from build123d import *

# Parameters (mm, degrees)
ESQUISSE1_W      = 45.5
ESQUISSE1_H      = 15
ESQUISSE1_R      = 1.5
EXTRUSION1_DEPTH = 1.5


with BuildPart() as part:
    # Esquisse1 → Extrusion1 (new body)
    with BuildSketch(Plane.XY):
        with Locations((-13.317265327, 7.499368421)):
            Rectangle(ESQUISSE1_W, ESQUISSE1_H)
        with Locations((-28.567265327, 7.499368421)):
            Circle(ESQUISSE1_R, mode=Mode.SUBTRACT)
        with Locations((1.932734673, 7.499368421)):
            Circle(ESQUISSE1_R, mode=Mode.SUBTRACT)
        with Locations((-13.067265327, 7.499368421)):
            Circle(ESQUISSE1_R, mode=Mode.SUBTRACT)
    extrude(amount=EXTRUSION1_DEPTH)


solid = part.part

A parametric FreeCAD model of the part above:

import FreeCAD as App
import Part
import Sketcher

doc = App.newDocument("Part")
body = doc.addObject("PartDesign::Body", "Body")

# Sketch on XY plane
sketch1 = body.newObject("Sketcher::SketchObject", "Sketch")
sketch1.AttachmentSupport = (doc.getObject("XY_Plane"), [""])
sketch1.MapMode = "FlatFace"
sketch1.addGeometry([
    Part.LineSegment(App.Vector(-36.1, 15, 0), App.Vector(-36.1, 0, 0)),  # 0
    Part.LineSegment(App.Vector(-36.1, 0, 0), App.Vector(9.4, 0, 0)),  # 1
    Part.LineSegment(App.Vector(9.4, 0, 0), App.Vector(9.4, 15, 0)),  # 2
    Part.LineSegment(App.Vector(9.4, 15, 0), App.Vector(-36.1, 15, 0)),  # 3
    Part.Circle(App.Vector(-28.6, 7.5, 0), App.Vector(0, 0, 1), 1.5),  # 4
    Part.Circle(App.Vector(-13.1, 7.5, 0), App.Vector(0, 0, 1), 1.5),  # 5
    Part.Circle(App.Vector(1.9, 7.5, 0), App.Vector(0, 0, 1), 1.5),  # 6
], False)
sketch1.addConstraint([
    Sketcher.Constraint("Coincident", 0, 2, 1, 1),
    Sketcher.Constraint("Coincident", 1, 2, 2, 1),
    Sketcher.Constraint("Coincident", 2, 2, 3, 1),
    Sketcher.Constraint("Coincident", 3, 2, 0, 1),
    Sketcher.Constraint("Vertical", 0),
    Sketcher.Constraint("Horizontal", 1),
    Sketcher.Constraint("Vertical", 2),
    Sketcher.Constraint("Horizontal", 3),
    Sketcher.Constraint("Equal", 4, 5),
    Sketcher.Constraint("Equal", 5, 6),
    Sketcher.Constraint("Horizontal", 4, 3, 5, 3),
    Sketcher.Constraint("Horizontal", 5, 3, 6, 3),
    Sketcher.Constraint("Diameter", 4, 3.0),
    Sketcher.Constraint("DistanceY", 0, 2, 0, 1, 15.0),
    Sketcher.Constraint("DistanceX", 1, 1, 1, 2, 45.5),
    Sketcher.Constraint("DistanceX", 5, 3, 6, 3, 15.0),
    Sketcher.Constraint("DistanceX", 0, 2, 5, 3, 23.0),
    Sketcher.Constraint("DistanceX", 4, 3, 1, 2, 38.0),
    Sketcher.Constraint("DistanceY", 0, 2, 4, 3, 7.5),
    Sketcher.Constraint("DistanceY", -1, 1, 4, 3, 7.499368),
    Sketcher.Constraint("DistanceX", 4, 3, -1, 1, 28.567265),
])
pad1 = body.newObject("PartDesign::Pad", "Pad")
pad1.Profile = sketch1
pad1.Length = 1.5

doc.recompute()
